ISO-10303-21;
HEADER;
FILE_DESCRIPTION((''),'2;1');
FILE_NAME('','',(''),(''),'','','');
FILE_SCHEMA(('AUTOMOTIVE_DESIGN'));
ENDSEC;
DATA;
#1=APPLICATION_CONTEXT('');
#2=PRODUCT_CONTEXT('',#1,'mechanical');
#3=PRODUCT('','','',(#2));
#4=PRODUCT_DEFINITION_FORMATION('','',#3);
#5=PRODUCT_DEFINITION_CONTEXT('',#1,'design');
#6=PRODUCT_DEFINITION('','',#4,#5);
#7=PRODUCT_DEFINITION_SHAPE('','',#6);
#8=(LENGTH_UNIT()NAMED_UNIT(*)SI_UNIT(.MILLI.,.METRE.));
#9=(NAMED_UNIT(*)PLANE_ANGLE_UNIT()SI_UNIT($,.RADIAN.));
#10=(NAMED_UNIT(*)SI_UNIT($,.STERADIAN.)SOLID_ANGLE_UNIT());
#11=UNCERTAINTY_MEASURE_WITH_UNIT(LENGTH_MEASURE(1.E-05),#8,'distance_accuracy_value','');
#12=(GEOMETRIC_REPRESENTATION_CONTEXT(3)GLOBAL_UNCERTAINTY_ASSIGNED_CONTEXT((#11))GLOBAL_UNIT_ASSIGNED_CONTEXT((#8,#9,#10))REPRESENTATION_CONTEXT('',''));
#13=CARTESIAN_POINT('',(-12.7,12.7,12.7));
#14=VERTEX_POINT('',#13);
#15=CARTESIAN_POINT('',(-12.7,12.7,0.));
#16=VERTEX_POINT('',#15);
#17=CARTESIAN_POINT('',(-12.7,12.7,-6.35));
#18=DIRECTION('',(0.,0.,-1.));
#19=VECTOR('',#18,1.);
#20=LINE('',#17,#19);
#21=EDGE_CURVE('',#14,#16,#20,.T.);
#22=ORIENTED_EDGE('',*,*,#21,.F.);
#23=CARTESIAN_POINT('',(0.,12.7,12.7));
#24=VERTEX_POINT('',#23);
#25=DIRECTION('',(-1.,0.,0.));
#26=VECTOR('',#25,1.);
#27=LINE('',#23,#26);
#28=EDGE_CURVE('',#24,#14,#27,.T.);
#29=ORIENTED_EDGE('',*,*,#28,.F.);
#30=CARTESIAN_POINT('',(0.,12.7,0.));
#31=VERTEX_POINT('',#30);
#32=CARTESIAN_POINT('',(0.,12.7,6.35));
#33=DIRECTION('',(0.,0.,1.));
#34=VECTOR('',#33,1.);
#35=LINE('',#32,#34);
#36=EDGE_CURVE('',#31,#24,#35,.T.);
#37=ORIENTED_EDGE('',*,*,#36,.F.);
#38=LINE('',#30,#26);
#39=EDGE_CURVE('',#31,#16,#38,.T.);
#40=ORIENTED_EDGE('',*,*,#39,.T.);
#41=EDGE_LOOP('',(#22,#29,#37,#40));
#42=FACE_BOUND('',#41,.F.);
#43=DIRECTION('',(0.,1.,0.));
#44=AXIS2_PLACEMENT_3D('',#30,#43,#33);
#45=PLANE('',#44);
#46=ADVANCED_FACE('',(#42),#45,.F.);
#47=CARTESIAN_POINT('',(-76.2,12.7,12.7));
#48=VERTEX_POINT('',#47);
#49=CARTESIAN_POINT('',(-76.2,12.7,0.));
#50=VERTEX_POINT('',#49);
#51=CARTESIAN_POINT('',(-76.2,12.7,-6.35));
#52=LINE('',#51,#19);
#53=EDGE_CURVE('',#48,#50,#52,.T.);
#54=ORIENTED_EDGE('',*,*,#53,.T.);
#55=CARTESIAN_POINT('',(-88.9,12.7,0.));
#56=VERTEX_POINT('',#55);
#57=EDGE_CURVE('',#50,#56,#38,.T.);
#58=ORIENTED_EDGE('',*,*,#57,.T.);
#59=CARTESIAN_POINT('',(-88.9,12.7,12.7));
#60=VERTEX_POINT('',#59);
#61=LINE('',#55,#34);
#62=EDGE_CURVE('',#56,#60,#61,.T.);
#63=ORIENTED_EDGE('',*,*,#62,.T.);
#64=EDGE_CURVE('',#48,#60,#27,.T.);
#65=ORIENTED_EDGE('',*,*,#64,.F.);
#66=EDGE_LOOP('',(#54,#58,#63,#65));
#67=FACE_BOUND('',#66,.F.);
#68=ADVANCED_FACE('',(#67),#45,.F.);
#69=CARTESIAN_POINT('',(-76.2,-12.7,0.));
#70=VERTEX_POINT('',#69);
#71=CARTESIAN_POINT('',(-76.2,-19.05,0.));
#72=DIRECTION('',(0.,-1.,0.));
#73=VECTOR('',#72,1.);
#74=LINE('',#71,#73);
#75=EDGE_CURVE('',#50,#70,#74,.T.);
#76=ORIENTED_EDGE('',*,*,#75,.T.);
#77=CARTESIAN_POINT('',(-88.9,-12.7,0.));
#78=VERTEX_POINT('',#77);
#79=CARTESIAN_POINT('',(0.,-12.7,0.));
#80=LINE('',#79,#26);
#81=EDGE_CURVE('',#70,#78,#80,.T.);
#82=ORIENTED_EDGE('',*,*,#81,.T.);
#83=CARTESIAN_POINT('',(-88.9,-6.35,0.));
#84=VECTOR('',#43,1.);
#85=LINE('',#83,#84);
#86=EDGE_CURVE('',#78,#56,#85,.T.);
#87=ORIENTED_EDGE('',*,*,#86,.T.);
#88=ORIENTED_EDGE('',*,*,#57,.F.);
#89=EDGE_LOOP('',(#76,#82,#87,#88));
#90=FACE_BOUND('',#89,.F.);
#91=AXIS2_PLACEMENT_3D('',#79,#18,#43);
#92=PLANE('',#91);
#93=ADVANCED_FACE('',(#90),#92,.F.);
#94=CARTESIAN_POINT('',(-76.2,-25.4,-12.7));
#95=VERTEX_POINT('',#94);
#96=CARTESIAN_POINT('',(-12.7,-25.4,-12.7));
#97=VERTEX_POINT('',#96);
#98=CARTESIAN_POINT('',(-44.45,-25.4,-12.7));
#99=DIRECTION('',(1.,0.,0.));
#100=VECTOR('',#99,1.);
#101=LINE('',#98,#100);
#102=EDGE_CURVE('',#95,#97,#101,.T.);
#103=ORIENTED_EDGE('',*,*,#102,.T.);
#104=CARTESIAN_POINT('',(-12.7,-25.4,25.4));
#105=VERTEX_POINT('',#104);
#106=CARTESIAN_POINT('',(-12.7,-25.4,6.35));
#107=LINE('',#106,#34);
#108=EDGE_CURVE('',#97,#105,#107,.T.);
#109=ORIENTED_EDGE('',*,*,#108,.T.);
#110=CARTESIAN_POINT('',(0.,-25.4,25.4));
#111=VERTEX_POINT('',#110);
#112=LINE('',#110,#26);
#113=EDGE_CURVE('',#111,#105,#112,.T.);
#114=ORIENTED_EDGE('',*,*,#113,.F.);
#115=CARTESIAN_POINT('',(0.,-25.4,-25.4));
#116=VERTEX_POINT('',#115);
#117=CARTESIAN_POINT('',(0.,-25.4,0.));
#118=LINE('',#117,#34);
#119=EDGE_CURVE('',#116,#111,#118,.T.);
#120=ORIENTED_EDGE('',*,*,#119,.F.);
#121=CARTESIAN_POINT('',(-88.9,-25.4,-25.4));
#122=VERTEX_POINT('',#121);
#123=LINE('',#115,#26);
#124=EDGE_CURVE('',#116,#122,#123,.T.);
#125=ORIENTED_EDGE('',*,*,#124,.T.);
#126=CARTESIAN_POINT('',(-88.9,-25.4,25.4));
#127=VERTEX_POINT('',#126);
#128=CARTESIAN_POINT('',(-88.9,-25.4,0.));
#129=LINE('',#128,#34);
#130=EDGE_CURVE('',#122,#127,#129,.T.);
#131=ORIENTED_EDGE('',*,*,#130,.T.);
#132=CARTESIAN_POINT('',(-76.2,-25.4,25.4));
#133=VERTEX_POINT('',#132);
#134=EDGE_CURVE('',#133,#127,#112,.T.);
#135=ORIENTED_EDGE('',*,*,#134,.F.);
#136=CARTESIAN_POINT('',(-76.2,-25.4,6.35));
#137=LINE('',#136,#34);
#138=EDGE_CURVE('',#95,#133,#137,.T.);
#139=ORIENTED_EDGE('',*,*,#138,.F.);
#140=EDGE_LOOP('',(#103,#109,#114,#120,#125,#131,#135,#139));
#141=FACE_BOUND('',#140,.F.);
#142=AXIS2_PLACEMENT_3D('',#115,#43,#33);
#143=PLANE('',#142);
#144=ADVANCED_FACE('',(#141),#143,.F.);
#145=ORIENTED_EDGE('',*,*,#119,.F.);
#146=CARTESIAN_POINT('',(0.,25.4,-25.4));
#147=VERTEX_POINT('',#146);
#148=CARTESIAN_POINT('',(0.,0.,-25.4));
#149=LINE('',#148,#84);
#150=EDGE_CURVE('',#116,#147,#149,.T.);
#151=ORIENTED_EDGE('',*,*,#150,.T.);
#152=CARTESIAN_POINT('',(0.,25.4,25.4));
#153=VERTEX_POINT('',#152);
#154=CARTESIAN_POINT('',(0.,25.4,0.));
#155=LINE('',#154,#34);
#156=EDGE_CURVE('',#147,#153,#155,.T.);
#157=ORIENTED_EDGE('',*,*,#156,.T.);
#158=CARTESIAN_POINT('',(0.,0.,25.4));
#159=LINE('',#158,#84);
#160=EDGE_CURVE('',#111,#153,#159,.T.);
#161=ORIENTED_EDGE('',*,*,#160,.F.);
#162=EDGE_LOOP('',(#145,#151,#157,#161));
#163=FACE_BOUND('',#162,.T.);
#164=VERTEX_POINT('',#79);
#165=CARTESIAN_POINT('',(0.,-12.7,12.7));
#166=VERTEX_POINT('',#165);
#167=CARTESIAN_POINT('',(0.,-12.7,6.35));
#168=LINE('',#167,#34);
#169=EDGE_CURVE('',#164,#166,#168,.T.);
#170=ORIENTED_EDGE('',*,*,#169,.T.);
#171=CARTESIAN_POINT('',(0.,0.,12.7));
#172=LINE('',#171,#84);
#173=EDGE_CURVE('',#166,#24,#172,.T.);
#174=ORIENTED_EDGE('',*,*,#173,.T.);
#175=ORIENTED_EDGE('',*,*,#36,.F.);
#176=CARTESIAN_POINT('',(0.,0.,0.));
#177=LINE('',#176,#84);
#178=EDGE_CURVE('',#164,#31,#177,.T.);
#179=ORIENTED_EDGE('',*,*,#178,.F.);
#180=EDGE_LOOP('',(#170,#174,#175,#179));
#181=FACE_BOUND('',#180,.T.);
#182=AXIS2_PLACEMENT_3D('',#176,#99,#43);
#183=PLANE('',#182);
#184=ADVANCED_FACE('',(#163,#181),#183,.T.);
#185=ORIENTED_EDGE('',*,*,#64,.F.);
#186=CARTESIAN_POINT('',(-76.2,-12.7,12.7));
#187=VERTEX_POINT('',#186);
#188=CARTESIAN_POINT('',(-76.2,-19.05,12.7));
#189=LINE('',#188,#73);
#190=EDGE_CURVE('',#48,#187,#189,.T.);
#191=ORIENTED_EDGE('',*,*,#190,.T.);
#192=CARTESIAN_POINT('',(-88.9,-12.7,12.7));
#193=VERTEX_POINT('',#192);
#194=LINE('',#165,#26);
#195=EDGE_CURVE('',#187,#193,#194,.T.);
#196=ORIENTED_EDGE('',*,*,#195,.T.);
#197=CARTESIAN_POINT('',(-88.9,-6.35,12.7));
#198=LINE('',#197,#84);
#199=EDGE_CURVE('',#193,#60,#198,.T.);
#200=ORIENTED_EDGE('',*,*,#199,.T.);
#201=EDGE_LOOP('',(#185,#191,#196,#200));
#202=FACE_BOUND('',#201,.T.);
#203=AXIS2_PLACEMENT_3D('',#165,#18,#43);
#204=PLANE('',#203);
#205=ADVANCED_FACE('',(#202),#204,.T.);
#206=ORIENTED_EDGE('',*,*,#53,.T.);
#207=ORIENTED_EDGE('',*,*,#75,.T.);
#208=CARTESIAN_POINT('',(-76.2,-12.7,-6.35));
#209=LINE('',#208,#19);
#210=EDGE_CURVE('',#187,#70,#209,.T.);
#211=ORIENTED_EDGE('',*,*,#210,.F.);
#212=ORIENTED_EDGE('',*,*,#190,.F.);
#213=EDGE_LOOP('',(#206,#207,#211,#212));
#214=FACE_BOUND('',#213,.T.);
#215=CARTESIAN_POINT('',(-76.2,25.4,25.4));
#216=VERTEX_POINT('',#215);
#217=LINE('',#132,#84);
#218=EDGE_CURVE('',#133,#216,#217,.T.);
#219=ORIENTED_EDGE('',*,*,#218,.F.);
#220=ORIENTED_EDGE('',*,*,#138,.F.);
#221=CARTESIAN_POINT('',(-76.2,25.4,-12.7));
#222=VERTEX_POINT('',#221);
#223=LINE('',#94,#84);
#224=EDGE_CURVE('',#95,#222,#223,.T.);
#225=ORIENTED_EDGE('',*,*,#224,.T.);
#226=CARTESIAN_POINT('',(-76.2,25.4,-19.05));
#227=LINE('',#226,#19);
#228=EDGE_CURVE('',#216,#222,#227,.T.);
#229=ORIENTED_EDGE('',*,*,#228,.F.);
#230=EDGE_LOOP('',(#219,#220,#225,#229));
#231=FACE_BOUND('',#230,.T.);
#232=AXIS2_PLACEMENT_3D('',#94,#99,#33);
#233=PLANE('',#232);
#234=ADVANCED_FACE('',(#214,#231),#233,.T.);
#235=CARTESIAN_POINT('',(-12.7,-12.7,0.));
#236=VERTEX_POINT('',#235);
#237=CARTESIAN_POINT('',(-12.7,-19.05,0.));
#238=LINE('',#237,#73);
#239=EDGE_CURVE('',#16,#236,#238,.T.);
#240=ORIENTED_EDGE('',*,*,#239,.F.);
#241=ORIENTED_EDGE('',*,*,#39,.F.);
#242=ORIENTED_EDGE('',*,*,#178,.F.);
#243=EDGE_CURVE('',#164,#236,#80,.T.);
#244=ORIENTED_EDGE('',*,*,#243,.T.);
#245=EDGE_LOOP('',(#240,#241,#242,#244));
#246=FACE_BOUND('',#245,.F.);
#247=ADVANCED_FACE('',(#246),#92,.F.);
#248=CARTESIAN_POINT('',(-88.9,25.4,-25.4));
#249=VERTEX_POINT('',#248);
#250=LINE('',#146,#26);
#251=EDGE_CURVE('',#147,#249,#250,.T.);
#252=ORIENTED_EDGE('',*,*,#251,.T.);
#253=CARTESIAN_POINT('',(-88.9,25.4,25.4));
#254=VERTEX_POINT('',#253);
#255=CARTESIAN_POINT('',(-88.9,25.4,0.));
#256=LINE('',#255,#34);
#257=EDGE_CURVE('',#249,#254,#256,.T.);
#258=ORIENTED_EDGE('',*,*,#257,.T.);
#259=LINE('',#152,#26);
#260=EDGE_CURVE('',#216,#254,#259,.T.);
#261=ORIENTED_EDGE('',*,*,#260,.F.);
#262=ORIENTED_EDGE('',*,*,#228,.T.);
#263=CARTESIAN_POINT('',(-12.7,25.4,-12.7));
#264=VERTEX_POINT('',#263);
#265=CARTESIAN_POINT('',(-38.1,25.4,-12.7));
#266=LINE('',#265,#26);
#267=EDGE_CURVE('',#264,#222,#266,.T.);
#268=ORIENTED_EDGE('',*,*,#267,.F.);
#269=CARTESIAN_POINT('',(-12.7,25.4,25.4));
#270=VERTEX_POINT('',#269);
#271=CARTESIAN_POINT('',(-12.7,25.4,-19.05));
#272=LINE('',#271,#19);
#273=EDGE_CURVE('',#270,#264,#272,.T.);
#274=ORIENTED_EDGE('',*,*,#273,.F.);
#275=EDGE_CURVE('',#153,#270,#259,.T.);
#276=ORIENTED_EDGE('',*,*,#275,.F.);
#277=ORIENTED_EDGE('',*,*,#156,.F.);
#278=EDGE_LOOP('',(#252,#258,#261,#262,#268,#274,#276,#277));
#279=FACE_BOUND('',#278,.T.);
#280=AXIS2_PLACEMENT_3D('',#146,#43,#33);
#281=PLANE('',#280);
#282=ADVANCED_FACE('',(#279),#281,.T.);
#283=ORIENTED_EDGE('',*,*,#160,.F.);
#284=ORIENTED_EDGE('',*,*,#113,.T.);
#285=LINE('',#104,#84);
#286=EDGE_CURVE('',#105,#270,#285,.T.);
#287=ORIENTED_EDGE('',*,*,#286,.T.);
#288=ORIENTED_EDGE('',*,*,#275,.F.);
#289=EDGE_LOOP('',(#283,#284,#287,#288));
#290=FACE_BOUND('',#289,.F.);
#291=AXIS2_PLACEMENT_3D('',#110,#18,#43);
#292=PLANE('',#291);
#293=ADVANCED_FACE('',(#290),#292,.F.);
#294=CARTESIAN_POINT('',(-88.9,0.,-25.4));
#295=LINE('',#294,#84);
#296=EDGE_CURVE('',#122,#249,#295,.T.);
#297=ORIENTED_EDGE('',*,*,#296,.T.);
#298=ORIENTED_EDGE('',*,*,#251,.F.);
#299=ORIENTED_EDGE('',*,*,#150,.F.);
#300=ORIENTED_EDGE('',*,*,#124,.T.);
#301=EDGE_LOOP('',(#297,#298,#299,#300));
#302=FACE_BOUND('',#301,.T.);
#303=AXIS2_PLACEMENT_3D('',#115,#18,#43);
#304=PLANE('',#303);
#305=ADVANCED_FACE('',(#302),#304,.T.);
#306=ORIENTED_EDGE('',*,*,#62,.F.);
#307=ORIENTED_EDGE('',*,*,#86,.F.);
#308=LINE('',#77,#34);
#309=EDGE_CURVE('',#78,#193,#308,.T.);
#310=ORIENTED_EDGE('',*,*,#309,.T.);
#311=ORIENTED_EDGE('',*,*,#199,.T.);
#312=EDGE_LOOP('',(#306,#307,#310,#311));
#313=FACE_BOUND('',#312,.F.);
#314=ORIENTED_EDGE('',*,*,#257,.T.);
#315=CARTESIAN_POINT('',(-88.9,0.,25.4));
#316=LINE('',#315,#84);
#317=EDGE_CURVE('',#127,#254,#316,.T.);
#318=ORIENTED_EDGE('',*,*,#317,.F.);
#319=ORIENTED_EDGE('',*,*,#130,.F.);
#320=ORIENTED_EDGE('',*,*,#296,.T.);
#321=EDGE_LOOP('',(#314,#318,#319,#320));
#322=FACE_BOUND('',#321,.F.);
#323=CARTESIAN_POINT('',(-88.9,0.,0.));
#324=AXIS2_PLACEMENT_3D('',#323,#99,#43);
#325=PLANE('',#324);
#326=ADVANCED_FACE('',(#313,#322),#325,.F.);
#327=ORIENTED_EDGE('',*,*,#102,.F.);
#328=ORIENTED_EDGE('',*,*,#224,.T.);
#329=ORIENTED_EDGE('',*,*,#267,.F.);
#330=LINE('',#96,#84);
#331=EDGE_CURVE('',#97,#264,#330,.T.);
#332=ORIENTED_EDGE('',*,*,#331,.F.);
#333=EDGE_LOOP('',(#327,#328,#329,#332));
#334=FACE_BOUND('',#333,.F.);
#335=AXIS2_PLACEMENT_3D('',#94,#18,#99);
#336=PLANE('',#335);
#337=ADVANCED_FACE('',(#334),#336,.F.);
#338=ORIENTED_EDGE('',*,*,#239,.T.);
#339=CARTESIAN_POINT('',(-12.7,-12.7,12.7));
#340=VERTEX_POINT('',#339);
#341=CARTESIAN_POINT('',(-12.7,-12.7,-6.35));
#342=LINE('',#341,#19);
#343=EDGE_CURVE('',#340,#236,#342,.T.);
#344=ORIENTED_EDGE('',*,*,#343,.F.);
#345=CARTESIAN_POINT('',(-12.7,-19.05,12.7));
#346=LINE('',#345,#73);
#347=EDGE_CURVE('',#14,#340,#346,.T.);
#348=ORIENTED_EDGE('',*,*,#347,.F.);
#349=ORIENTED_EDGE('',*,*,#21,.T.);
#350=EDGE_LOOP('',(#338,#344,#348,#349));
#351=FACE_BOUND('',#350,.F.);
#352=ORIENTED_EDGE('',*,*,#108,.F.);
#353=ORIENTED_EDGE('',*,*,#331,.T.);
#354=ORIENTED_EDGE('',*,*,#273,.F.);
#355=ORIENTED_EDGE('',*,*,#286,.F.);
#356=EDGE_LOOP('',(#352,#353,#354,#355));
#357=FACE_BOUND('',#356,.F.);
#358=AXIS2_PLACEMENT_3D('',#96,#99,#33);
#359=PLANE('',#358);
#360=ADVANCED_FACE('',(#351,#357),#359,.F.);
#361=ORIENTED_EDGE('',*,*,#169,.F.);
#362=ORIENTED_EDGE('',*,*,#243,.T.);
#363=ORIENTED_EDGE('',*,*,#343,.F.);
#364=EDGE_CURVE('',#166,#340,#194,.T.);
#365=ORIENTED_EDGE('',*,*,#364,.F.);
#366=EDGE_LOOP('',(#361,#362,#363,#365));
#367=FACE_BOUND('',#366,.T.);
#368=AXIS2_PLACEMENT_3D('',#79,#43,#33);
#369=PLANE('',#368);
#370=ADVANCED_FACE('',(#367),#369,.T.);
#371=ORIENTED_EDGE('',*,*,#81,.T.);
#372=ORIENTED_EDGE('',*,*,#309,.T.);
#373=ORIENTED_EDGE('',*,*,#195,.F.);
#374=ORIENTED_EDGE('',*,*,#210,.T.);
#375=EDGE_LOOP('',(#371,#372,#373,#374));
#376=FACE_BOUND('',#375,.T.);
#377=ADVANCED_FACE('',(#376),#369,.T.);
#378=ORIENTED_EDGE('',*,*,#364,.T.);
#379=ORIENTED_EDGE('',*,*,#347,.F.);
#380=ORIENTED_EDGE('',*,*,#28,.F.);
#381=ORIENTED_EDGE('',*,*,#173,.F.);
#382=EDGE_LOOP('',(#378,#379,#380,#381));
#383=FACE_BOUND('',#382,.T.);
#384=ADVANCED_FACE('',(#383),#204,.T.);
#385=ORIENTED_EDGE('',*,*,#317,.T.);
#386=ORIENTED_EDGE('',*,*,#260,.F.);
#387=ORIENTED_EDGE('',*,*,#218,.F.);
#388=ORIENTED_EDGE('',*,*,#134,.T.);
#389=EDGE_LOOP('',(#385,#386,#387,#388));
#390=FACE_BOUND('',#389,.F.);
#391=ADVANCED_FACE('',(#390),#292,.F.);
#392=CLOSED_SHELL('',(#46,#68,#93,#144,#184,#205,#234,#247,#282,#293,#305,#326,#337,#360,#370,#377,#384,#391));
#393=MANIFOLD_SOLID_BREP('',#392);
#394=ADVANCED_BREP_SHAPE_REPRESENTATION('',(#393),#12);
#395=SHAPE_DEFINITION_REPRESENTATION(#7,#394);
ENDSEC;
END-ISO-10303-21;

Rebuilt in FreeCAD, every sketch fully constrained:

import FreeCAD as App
import Part
import Sketcher
from FreeCAD import Vector
Q = App.Units.Quantity

doc = App.newDocument("Part")
params = doc.addObject("Spreadsheet::Sheet", "Params")
for row, (alias, value) in enumerate([
    ("sketch1_width", "2 in"),
    ("pad1_length", "3.5 in"),
    ("sketch2_width", "1 in"),
    ("sketch2_height", "0.5 in"),
    ("sketch3_width", "2.5 in"),
    ("sketch3_height", "1.5 in"),
], start=1):
    params.set(f"A{row}", alias)
    params.set(f"B{row}", "=" + value)
    params.setAlias(f"B{row}", alias)

body = doc.addObject("PartDesign::Body", "Body")

sketch1 = doc.addObject("Sketcher::SketchObject", "Sketch")
body.addObject(sketch1)
sketch1.AttachmentSupport = (doc.YZ_Plane, [""])
sketch1.MapMode = "FlatFace"
sketch1.addGeometry([
    Part.LineSegment(Vector(-25.4, 25.4, 0), Vector(-25.4, -25.4, 0)),
    Part.LineSegment(Vector(-25.4, -25.4, 0), Vector(25.4, -25.4, 0)),
    Part.LineSegment(Vector(25.4, -25.4, 0), Vector(25.4, 25.4, 0)),
    Part.LineSegment(Vector(25.4, 25.4, 0), Vector(-25.4, 25.4, 0)),
], False)
sketch1.addConstraint([
    Sketcher.Constraint("Coincident", 0, 2, 1, 1),
    Sketcher.Constraint("Coincident", 1, 2, 2, 1),
    Sketcher.Constraint("Coincident", 2, 2, 3, 1),
    Sketcher.Constraint("Coincident", 3, 2, 0, 1),
    Sketcher.Constraint("Vertical", 0),
    Sketcher.Constraint("Horizontal", 1),
    Sketcher.Constraint("Vertical", 2),
    Sketcher.Constraint("Horizontal", 3),
    Sketcher.Constraint("Symmetric", 0, 2, 2, 2, -1, 1),
    Sketcher.Constraint("Equal", 3, 0),
    Sketcher.Constraint("DistanceX", 1, 1, 1, 2, Q("2 in")),
])
sketch1.setExpression("Constraints[10]", "Params.sketch1_width")
pad1 = doc.addObject("PartDesign::Pad", "Pad")
body.addObject(pad1)
pad1.Profile = sketch1
pad1.setExpression("Length", "Params.pad1_length")
pad1.Reversed = True

sketch2 = doc.addObject("Sketcher::SketchObject", "Sketch001")
body.addObject(sketch2)
sketch2.AttachmentSupport = (doc.YZ_Plane, [""])
sketch2.MapMode = "FlatFace"
sketch2.addGeometry([
    Part.LineSegment(Vector(-12.7, 12.7, 0), Vector(-12.7, 0, 0)),
    Part.LineSegment(Vector(-12.7, 0, 0), Vector(12.7, 0, 0)),
    Part.LineSegment(Vector(12.7, 0, 0), Vector(12.7, 12.7, 0)),
    Part.LineSegment(Vector(12.7, 12.7, 0), Vector(-12.7, 12.7, 0)),
], False)
sketch2.addConstraint([
    Sketcher.Constraint("Coincident", 0, 2, 1, 1),
    Sketcher.Constraint("Coincident", 1, 2, 2, 1),
    Sketcher.Constraint("Coincident", 2, 2, 3, 1),
    Sketcher.Constraint("Coincident", 3, 2, 0, 1),
    Sketcher.Constraint("Vertical", 0),
    Sketcher.Constraint("Horizontal", 1),
    Sketcher.Constraint("Vertical", 2),
    Sketcher.Constraint("Horizontal", 3),
    Sketcher.Constraint("Symmetric", 0, 2, 1, 2, -1, 1),
    Sketcher.Constraint("DistanceX", 1, 1, 1, 2, Q("1 in")),
    Sketcher.Constraint("DistanceY", 0, 2, 0, 1, Q("0.5 in")),
])
sketch2.setExpression("Constraints[9]", "Params.sketch2_width")
sketch2.setExpression("Constraints[10]", "Params.sketch2_height")
pocket1 = doc.addObject("PartDesign::Pocket", "Pocket")
body.addObject(pocket1)
pocket1.Profile = sketch2
pocket1.Type = "ThroughAll"

sketch3 = doc.addObject("Sketcher::SketchObject", "Sketch002")
body.addObject(sketch3)
sketch3.AttachmentSupport = (doc.XZ_Plane, [""])
sketch3.MapMode = "FlatFace"
sketch3.AttachmentOffset = App.Placement(Vector(0, 0, 1 * 25.4), App.Rotation())
sketch3.addGeometry([
    Part.LineSegment(Vector(-76.2, 25.4, 0), Vector(-76.2, -12.7, 0)),
    Part.LineSegment(Vector(-76.2, -12.7, 0), Vector(-12.7, -12.7, 0)),
    Part.LineSegment(Vector(-12.7, -12.7, 0), Vector(-12.7, 25.4, 0)),
    Part.LineSegment(Vector(-12.7, 25.4, 0), Vector(-76.2, 25.4, 0)),
], False)
sketch3.addConstraint([
    Sketcher.Constraint("Coincident", 0, 2, 1, 1),
    Sketcher.Constraint("Coincident", 1, 2, 2, 1),
    Sketcher.Constraint("Coincident", 2, 2, 3, 1),
    Sketcher.Constraint("Coincident", 3, 2, 0, 1),
    Sketcher.Constraint("Vertical", 0),
    Sketcher.Constraint("Horizontal", 1),
    Sketcher.Constraint("Vertical", 2),
    Sketcher.Constraint("Horizontal", 3),
    Sketcher.Constraint("DistanceX", 1, 1, 1, 2, Q("2.5 in")),
    Sketcher.Constraint("DistanceY", 0, 2, 0, 1, Q("1.5 in")),
    Sketcher.Constraint("DistanceX", 0, 2, -1, 1, Q("3 in")),
    Sketcher.Constraint("DistanceY", -1, 1, 2, 2, Q("1 in")),
])
sketch3.setExpression("Constraints[8]", "Params.sketch3_width")
sketch3.setExpression("Constraints[9]", "Params.sketch3_height")
pocket2 = doc.addObject("PartDesign::Pocket", "Pocket001")
body.addObject(pocket2)
pocket2.Profile = sketch3
pocket2.Type = "ThroughAll"

doc.recompute()
